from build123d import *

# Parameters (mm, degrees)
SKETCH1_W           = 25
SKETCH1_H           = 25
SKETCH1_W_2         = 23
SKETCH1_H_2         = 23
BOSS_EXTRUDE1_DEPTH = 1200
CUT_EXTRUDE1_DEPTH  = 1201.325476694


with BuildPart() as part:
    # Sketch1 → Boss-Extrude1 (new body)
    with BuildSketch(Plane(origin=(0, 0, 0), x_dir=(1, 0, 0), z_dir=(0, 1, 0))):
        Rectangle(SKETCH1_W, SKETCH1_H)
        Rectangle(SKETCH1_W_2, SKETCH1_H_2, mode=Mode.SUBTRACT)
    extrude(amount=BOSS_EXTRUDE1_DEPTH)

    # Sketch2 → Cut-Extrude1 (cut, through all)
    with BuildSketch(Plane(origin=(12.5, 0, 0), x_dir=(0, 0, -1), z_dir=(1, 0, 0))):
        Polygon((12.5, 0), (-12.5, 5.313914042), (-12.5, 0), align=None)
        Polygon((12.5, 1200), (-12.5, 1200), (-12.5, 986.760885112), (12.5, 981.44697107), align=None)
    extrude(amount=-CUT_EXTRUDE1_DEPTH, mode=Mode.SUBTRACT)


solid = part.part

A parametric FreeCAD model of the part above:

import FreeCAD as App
import Part
import Sketcher

V = App.Vector
Q = App.Units.Quantity

doc = App.newDocument("Part")
body = doc.addObject("PartDesign::Body", "Body")

# Sketch on XZ plane
sketch1 = body.newObject("Sketcher::SketchObject", "Sketch")
sketch1.AttachmentSupport = (doc.getObject("XZ_Plane"), [""])
sketch1.MapMode = "FlatFace"
sketch1.addGeometry([
    Part.LineSegment(V(-12.5, -12.5, 0), V(-12.5, 12.5, 0)),  # 0
    Part.LineSegment(V(-12.5, 12.5, 0), V(12.5, 12.5, 0)),  # 1
    Part.LineSegment(V(12.5, 12.5, 0), V(12.5, -12.5, 0)),  # 2
    Part.LineSegment(V(12.5, -12.5, 0), V(-12.5, -12.5, 0)),  # 3
    Part.LineSegment(V(11.5, 11.5, 0), V(-11.5, 11.5, 0)),  # 4
    Part.LineSegment(V(-11.5, 11.5, 0), V(-11.5, -11.5, 0)),  # 5
    Part.LineSegment(V(-11.5, -11.5, 0), V(11.5, -11.5, 0)),  # 6
    Part.LineSegment(V(11.5, -11.5, 0), V(11.5, 11.5, 0)),  # 7
], False)
sketch1.addConstraint([
    Sketcher.Constraint("Coincident", 0, 2, 1, 1),
    Sketcher.Constraint("Coincident", 1, 2, 2, 1),
    Sketcher.Constraint("Coincident", 2, 2, 3, 1),
    Sketcher.Constraint("Coincident", 3, 2, 0, 1),
    Sketcher.Constraint("Coincident", 4, 2, 5, 1),
    Sketcher.Constraint("Coincident", 5, 2, 6, 1),
    Sketcher.Constraint("Coincident", 6, 2, 7, 1),
    Sketcher.Constraint("Coincident", 7, 2, 4, 1),
    Sketcher.Constraint("Vertical", 0),
    Sketcher.Constraint("Horizontal", 1),
    Sketcher.Constraint("Vertical", 2),
    Sketcher.Constraint("Horizontal", 3),
    Sketcher.Constraint("Horizontal", 4),
    Sketcher.Constraint("Vertical", 5),
    Sketcher.Constraint("Horizontal", 6),
    Sketcher.Constraint("Vertical", 7),
    Sketcher.Constraint("Symmetric", 0, 2, 2, 2, -1, 1),
    Sketcher.Constraint("Symmetric", 4, 2, 6, 2, -1, 1),
    Sketcher.Constraint("Equal", 3, 0),
    Sketcher.Constraint("Equal", 6, 5),
    Sketcher.Constraint("DistanceX", 1, 1, 1, 2, Q("25 mm")),
    Sketcher.Constraint("DistanceX", 4, 2, 4, 1, Q("23 mm")),
])
pad1 = body.newObject("PartDesign::Pad", "Pad")
pad1.Profile = sketch1
pad1.Length = 1200
pad1.Reversed = True

# Sketch on YZ plane
sketch2 = body.newObject("Sketcher::SketchObject", "Sketch001")
sketch2.AttachmentSupport = (doc.getObject("YZ_Plane"), [""])
sketch2.MapMode = "FlatFace"
sketch2.AttachmentOffset = App.Placement(V(0, 0, 12.5), App.Rotation())
sketch2.addGeometry([
    Part.LineSegment(V(0, -12.5, 0), V(5.313914, 12.5, 0)),  # 0
    Part.LineSegment(V(5.313914, 12.5, 0), V(0, 12.5, 0)),  # 1
    Part.LineSegment(V(0, 12.5, 0), V(0, -12.5, 0)),  # 2
    Part.LineSegment(V(1200, -12.5, 0), V(1200, 12.5, 0)),  # 3
    Part.LineSegment(V(1200, 12.5, 0), V(986.760885, 12.5, 0)),  # 4
    Part.LineSegment(V(986.760885, 12.5, 0), V(981.446971, -12.5, 0)),  # 5
    Part.LineSegment(V(981.446971, -12.5, 0), V(1200, -12.5, 0)),  # 6
], False)
sketch2.addConstraint([
    Sketcher.Constraint("Coincident", 0, 2, 1, 1),
    Sketcher.Constraint("Coincident", 1, 2, 2, 1),
    Sketcher.Constraint("Coincident", 2, 2, 0, 1),
    Sketcher.Constraint("Coincident", 3, 2, 4, 1),
    Sketcher.Constraint("Coincident", 4, 2, 5, 1),
    Sketcher.Constraint("Coincident", 5, 2, 6, 1),
    Sketcher.Constraint("Coincident", 6, 2, 3, 1),
    Sketcher.Constraint("Horizontal", 1),
    Sketcher.Constraint("Vertical", 2),
    Sketcher.Constraint("Vertical", 3),
    Sketcher.Constraint("Horizontal", 4),
    Sketcher.Constraint("Horizontal", 6),
    Sketcher.Constraint("Symmetric", 1, 2, 2, 2, -1, 1),
    Sketcher.Constraint("Parallel", 0, 5),
    Sketcher.Constraint("Horizontal", 1, 2, 3, 2),
    Sketcher.Constraint("Horizontal", 2, 2, 5, 2),
    Sketcher.Constraint("DistanceY", 2, 2, 2, 1, Q("25 mm")),
    Sketcher.Constraint("Angle", 0, Q("78 deg")),
    Sketcher.Constraint("DistanceX", -1, 1, 3, 2, Q("1200 mm")),
    Sketcher.Constraint("DistanceX", 6, 1, 6, 2, Q("218.553029 mm")),
])
pocket1 = body.newObject("PartDesign::Pocket", "Pocket")
pocket1.Profile = sketch2
pocket1.Type = "ThroughAll"

doc.recompute()
